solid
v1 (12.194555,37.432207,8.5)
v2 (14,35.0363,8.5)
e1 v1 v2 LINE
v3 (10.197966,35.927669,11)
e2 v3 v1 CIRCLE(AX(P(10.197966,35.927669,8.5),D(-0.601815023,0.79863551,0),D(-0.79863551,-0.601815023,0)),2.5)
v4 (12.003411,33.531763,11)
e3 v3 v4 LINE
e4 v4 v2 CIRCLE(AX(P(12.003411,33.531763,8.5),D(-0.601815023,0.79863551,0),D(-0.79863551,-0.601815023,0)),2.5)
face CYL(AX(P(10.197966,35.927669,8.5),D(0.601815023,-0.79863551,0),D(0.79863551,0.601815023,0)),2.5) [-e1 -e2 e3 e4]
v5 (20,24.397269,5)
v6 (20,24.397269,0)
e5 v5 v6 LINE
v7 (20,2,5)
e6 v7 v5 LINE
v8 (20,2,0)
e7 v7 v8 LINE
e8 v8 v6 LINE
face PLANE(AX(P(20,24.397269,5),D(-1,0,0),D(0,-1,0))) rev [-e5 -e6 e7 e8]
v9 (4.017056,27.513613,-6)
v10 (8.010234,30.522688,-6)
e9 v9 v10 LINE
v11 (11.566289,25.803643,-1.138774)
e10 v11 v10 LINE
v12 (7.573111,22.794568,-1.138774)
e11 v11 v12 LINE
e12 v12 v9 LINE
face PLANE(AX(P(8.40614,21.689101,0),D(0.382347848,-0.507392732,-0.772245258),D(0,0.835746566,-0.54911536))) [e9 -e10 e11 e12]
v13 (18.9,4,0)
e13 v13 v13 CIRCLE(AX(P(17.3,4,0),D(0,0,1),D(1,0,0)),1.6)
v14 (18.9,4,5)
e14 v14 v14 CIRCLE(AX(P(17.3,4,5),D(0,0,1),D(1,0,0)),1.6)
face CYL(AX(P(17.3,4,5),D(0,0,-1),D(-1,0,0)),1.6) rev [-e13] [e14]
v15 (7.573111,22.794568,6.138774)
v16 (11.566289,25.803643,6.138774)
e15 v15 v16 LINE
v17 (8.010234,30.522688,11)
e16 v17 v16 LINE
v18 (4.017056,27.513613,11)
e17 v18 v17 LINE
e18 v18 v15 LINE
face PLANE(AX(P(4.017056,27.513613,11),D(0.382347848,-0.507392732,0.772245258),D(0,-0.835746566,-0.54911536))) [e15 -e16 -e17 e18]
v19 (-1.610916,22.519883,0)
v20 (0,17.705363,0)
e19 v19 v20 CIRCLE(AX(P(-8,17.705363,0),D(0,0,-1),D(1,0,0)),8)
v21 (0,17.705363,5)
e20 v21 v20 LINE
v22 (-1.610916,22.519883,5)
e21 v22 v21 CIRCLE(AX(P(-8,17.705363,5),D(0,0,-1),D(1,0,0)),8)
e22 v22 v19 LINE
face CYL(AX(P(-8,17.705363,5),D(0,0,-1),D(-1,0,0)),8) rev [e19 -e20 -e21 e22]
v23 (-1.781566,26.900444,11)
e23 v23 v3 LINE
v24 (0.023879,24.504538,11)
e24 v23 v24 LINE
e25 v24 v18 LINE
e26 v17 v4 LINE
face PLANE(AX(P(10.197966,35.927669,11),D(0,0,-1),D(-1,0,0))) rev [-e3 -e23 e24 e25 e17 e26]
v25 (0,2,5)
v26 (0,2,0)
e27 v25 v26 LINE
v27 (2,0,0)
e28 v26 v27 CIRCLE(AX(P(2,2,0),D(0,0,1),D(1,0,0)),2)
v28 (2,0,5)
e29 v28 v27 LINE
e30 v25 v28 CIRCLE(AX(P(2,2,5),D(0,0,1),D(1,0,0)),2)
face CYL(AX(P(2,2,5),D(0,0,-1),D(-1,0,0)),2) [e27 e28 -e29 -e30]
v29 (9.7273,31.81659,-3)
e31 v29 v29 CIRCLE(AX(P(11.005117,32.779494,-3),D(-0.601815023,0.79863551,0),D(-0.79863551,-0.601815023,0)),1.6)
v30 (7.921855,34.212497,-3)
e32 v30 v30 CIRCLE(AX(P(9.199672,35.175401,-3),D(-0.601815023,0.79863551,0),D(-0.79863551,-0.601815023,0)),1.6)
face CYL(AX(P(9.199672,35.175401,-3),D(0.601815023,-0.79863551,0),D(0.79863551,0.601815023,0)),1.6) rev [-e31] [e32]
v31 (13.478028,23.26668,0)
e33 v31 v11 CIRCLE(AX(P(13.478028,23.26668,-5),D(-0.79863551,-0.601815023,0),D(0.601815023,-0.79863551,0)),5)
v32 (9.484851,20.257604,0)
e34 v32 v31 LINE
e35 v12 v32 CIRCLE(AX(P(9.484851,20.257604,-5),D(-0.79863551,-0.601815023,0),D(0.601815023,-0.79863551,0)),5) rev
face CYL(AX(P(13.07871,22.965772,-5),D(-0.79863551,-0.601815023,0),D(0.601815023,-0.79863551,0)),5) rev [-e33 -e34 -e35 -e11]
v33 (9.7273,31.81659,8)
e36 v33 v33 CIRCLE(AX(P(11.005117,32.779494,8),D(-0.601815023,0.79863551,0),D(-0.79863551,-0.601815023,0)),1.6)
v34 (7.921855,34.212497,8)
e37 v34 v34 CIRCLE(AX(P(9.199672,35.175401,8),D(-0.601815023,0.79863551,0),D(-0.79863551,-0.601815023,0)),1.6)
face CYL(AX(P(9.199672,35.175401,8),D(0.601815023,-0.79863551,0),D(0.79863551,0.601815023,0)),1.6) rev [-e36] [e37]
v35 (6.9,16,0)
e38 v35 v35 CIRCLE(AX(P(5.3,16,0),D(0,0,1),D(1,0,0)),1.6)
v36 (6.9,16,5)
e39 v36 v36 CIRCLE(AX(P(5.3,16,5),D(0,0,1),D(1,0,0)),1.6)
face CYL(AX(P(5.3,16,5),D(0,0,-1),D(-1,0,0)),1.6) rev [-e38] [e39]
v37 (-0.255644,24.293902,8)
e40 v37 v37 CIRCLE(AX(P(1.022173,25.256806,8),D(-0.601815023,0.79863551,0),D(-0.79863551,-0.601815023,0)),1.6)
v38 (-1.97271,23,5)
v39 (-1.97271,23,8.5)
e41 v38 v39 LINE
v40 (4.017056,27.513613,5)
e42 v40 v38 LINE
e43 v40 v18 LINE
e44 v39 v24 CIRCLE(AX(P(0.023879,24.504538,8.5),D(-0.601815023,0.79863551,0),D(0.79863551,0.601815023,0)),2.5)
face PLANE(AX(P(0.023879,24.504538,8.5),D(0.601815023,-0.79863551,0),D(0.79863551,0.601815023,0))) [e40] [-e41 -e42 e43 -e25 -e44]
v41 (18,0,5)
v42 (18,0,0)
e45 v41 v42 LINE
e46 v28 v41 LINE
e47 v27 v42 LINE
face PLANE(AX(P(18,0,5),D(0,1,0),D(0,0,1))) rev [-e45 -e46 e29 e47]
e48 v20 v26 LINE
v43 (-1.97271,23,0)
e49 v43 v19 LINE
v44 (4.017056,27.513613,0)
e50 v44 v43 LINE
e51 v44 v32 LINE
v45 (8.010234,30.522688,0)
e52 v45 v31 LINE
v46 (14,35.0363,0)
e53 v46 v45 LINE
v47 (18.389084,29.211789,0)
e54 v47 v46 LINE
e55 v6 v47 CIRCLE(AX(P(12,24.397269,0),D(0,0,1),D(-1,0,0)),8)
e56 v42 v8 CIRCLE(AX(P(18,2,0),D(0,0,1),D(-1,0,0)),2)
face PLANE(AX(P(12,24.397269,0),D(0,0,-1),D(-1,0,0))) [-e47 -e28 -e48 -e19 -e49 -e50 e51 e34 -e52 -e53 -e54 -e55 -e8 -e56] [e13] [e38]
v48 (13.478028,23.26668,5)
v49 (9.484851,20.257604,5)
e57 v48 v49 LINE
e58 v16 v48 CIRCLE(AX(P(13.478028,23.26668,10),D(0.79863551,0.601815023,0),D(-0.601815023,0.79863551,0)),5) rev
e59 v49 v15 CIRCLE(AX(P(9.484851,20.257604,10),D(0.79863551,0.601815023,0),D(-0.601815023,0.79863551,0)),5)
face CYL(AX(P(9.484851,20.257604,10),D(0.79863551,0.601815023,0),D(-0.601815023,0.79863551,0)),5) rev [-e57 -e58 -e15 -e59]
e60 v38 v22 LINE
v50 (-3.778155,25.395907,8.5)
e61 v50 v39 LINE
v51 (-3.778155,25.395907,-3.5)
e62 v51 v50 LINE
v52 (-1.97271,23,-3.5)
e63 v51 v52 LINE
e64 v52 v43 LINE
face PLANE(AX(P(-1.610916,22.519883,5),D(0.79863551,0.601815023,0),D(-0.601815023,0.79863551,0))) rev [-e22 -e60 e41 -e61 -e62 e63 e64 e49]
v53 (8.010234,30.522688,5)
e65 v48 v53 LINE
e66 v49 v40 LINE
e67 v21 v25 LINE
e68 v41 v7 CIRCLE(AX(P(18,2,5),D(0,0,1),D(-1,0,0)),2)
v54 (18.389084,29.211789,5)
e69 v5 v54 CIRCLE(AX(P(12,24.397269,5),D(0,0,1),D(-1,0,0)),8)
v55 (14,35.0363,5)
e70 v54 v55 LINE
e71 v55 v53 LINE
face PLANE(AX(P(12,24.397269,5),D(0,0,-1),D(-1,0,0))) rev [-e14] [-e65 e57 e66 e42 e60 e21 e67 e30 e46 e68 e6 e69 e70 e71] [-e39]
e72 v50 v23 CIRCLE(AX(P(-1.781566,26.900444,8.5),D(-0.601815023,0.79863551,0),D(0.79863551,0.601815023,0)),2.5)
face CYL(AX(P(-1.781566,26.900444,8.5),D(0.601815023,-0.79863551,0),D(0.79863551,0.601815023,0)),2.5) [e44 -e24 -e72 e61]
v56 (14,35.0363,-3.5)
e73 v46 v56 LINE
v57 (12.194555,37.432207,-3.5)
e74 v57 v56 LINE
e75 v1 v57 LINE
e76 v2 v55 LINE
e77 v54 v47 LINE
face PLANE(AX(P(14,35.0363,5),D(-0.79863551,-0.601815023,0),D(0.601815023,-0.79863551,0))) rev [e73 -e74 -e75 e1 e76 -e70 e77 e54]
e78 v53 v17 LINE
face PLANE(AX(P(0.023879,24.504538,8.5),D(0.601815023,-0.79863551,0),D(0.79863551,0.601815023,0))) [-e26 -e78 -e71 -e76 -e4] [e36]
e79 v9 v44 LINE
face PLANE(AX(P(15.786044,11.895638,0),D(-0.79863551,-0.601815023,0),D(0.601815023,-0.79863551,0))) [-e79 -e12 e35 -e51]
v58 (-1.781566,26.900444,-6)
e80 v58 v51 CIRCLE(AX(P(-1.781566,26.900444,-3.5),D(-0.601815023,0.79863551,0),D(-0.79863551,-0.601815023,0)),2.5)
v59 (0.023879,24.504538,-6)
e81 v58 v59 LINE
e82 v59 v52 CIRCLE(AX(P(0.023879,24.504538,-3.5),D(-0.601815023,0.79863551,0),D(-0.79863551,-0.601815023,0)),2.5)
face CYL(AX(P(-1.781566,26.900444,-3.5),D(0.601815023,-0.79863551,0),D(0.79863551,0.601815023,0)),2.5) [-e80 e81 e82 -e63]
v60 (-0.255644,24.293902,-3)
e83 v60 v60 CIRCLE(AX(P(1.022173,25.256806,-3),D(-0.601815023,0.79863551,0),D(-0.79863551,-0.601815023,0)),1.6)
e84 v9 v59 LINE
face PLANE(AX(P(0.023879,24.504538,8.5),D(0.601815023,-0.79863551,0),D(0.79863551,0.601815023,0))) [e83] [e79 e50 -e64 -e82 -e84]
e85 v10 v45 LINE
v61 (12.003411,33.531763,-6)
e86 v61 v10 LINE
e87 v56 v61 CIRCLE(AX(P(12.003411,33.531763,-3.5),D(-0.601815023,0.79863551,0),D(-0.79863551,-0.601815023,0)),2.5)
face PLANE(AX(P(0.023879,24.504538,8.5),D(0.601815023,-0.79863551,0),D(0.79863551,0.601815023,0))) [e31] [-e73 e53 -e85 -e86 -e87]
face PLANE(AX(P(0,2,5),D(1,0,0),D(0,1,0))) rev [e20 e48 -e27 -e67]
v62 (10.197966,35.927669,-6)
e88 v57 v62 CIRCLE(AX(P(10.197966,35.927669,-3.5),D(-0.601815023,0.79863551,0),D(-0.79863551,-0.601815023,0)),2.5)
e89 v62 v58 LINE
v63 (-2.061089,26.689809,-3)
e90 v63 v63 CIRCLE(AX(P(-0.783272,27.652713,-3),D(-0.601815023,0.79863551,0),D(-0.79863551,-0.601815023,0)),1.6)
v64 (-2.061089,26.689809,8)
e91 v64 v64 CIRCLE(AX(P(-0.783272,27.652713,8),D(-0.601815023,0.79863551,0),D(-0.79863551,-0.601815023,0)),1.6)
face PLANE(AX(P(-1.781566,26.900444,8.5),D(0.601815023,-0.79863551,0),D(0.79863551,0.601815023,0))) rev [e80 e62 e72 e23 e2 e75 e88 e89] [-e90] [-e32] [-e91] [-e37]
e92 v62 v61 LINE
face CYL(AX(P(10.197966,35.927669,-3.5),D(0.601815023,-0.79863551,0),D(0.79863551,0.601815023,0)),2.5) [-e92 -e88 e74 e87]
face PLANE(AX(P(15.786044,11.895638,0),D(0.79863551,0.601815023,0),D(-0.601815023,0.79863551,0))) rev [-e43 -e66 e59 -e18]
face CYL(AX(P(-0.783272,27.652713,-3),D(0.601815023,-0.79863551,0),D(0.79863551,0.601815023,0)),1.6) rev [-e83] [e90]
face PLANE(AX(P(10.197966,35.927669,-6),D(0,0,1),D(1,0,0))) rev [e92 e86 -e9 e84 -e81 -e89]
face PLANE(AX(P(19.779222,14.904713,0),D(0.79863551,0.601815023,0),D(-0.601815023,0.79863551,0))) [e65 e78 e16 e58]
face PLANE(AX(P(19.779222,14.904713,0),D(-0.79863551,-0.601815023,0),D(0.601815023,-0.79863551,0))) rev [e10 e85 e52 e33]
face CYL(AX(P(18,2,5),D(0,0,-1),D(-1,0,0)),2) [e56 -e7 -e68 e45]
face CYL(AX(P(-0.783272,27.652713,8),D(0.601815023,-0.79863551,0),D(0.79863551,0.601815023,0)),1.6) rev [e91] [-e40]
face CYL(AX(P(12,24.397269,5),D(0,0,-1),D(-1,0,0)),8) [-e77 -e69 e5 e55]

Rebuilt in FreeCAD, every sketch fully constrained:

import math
import FreeCAD as App
import Part
import Sketcher
Q = App.Units.Quantity


def edges_at(feature, points):
    """Names of the edges that pass closest to the given points."""
    edges = feature.Shape.Edges
    near = lambda p: min(range(len(edges)), key=lambda i: edges[i].distToShape(Part.Vertex(*p))[0])
    return sorted({f"Edge{near(p) + 1}" for p in points})


def add_polygon(sketch, points):
    """Adds a closed chain of lines whose ends are joined by coincident constraints."""
    first, n = sketch.GeometryCount, len(points)
    for a, b in zip(points, points[1:] + points[:1]):
        sketch.addGeometry(Part.LineSegment(App.Vector(*a, 0), App.Vector(*b, 0)), False)
    for i in range(n):
        sketch.addConstraint(Sketcher.Constraint("Coincident", first + i, 2, first + (i + 1) % n, 1))

doc = App.newDocument("Part")
params = doc.addObject("Spreadsheet::Sheet", "Params")
for row, (alias, value) in enumerate([
    ("sketch1_radius", "2 mm"),
    ("sketch1_radius2", "8 mm"),
    ("sketch1_diameter", "3.2 mm"),
    ("sketch1_width", "16 mm"),
    ("sketch1_length", "20 mm"),
    ("pad1_length", "5 mm"),
    ("sketch2_diameter", "3.2 mm"),
    ("sketch2_radius", "2.5 mm"),
    ("sketch2_width", "15 mm"),
    ("sketch2_height", "12 mm"),
    ("pad2_length", "3 mm"),
    ("sketch3_width", "6 mm"),
    ("pad3_length", "5 mm"),
    ("fillet_radius", "5 mm"),
], start=1):
    params.set(f"A{row}", alias)
    params.set(f"B{row}", "=" + value)
    params.setAlias(f"B{row}", alias)

body = doc.addObject("PartDesign::Body", "Body")

sketch1 = body.newObject("Sketcher::SketchObject", "Sketch")
sketch1.AttachmentSupport = (doc.getObject("XY_Plane"), [""])
sketch1.MapMode = "FlatFace"
sketch1.addGeometry(Part.LineSegment(App.Vector(0, 17.705363, 0), App.Vector(0, 2, 0)), False)
sketch1.addGeometry(Part.ArcOfCircle(Part.Circle(App.Vector(2, 2, 0), App.Vector(0, 0, 1), 2), math.radians(-180), math.radians(-90)), False)
sketch1.addGeometry(Part.LineSegment(App.Vector(2, 0, 0), App.Vector(18, 0, 0)), False)
sketch1.addGeometry(Part.ArcOfCircle(Part.Circle(App.Vector(18, 2, 0), App.Vector(0, 0, 1), 2), math.radians(-90), math.radians(0)), False)
sketch1.addGeometry(Part.LineSegment(App.Vector(20, 2, 0), App.Vector(20, 24.397269, 0)), False)
sketch1.addGeometry(Part.ArcOfCircle(Part.Circle(App.Vector(12, 24.397269, 0), App.Vector(0, 0, 1), 8), math.radians(0), math.radians(37)), False)
sketch1.addGeometry(Part.LineSegment(App.Vector(18.389084, 29.211789, 0), App.Vector(14, 35.0363, 0)), False)
sketch1.addGeometry(Part.LineSegment(App.Vector(14, 35.0363, 0), App.Vector(-1.97271, 23, 0)), False)
sketch1.addGeometry(Part.LineSegment(App.Vector(-1.97271, 23, 0), App.Vector(-1.610916, 22.519883, 0)), False)
sketch1.addGeometry(Part.ArcOfCircle(Part.Circle(App.Vector(-8, 17.705363, 0), App.Vector(0, 0, 1), 8), math.radians(0), math.radians(37)), False)
sketch1.addGeometry(Part.Circle(App.Vector(17.3, 4, 0), App.Vector(0, 0, 1), 1.6), False)
sketch1.addGeometry(Part.Circle(App.Vector(5.3, 16, 0), App.Vector(0, 0, 1), 1.6), False)
sketch1.addConstraint(Sketcher.Constraint("Tangent", 0, 2, 1, 1))
sketch1.addConstraint(Sketcher.Constraint("Tangent", 1, 2, 2, 1))
sketch1.addConstraint(Sketcher.Constraint("Tangent", 2, 2, 3, 1))
sketch1.addConstraint(Sketcher.Constraint("Tangent", 3, 2, 4, 1))
sketch1.addConstraint(Sketcher.Constraint("Tangent", 4, 2, 5, 1))
sketch1.addConstraint(Sketcher.Constraint("Tangent", 5, 2, 6, 1))
sketch1.addConstraint(Sketcher.Constraint("Coincident", 6, 2, 7, 1))
sketch1.addConstraint(Sketcher.Constraint("Coincident", 7, 2, 8, 1))
sketch1.addConstraint(Sketcher.Constraint("Tangent", 8, 2, 9, 2))
sketch1.addConstraint(Sketcher.Constraint("Tangent", 9, 1, 0, 1))
sketch1.addConstraint(Sketcher.Constraint("Vertical", 0))
sketch1.addConstraint(Sketcher.Constraint("Horizontal", 2))
sketch1.addConstraint(Sketcher.Constraint("Vertical", 4))
sketch1.addConstraint(Sketcher.Constraint("Equal", 1, 3))
sketch1.addConstraint(Sketcher.Constraint("Equal", 5, 9))
sketch1.addConstraint(Sketcher.Constraint("Equal", 10, 11))
sketch1.addConstraint(Sketcher.Constraint("PointOnObject", 0, 2, -2))
sketch1.addConstraint(Sketcher.Constraint("PointOnObject", 1, 2, -1))
sketch1.addConstraint(Sketcher.Constraint("Perpendicular", 6, 7))
sketch1.addConstraint(Sketcher.Constraint("Perpendicular", 7, 8))
sketch1.addConstraint(Sketcher.Constraint("Radius", 1, 2.0))
sketch1.addConstraint(Sketcher.Constraint("Radius", 5, 8.0))
sketch1.addConstraint(Sketcher.Constraint("Diameter", 10, 3.2))
sketch1.addConstraint(Sketcher.Constraint("DistanceX", 2, 1, 2, 2, 16.0))
sketch1.addConstraint(Sketcher.Constraint("Angle", 6, Q("127 deg")))
sketch1.addConstraint(Sketcher.Constraint("Distance", 7, 20.0))
sketch1.addConstraint(Sketcher.Constraint("DistanceY", -1, 1, 10, 3, 4.0))
sketch1.addConstraint(Sketcher.Constraint("DistanceY", -1, 1, 11, 3, 16.0))
sketch1.addConstraint(Sketcher.Constraint("DistanceX", -1, 1, 6, 2, 14.0))
sketch1.addConstraint(Sketcher.Constraint("DistanceY", -1, 1, 7, 2, 23.0))
sketch1.addConstraint(Sketcher.Constraint("DistanceX", 11, 3, 10, 3, 12.0))
sketch1.addConstraint(Sketcher.Constraint("DistanceX", -1, 1, 10, 3, 17.3))
sketch1.setExpression("Constraints[20]", "Params.sketch1_radius")
sketch1.setExpression("Constraints[21]", "Params.sketch1_radius2")
sketch1.setExpression("Constraints[22]", "Params.sketch1_diameter")
sketch1.setExpression("Constraints[23]", "Params.sketch1_width")
sketch1.setExpression("Constraints[25]", "Params.sketch1_length")
pad1 = body.newObject("PartDesign::Pad", "Pad")
pad1.Profile = sketch1
pad1.setExpression("Length", "Params.pad1_length")

sketch2 = body.newObject("Sketcher::SketchObject", "Sketch001")
sketch2.Placement = App.Placement(App.Vector(-11.768988, 15.617975, 0), App.Rotation(App.Vector(0.79863551, 0.601815023, 0), App.Vector(0, 0, -1), App.Vector(-0.601815023, 0.79863551, 0), "ZXY"))
sketch2.addGeometry(Part.LineSegment(App.Vector(14.766269, -11, 0), App.Vector(29.766269, -11, 0)), False)
sketch2.addGeometry(Part.ArcOfCircle(Part.Circle(App.Vector(29.766269, -8.5, 0), App.Vector(0, 0, 1), 2.5), math.radians(-90), math.radians(0)), False)
sketch2.addGeometry(Part.LineSegment(App.Vector(32.266269, -8.5, 0), App.Vector(32.266269, 3.5, 0)), False)
sketch2.addGeometry(Part.ArcOfCircle(Part.Circle(App.Vector(29.766269, 3.5, 0), App.Vector(0, 0, 1), 2.5), math.radians(0), math.radians(90)), False)
sketch2.addGeometry(Part.LineSegment(App.Vector(29.766269, 6, 0), App.Vector(14.766269, 6, 0)), False)
sketch2.addGeometry(Part.ArcOfCircle(Part.Circle(App.Vector(14.766269, 3.5, 0), App.Vector(0, 0, 1), 2.5), math.radians(90), math.radians(180)), False)
sketch2.addGeometry(Part.LineSegment(App.Vector(12.266269, 3.5, 0), App.Vector(12.266269, -8.5, 0)), False)
sketch2.addGeometry(Part.ArcOfCircle(Part.Circle(App.Vector(14.766269, -8.5, 0), App.Vector(0, 0, 1), 2.5), math.radians(180), math.radians(270)), False)
sketch2.addGeometry(Part.Circle(App.Vector(28.516269, -8, 0), App.Vector(0, 0, 1), 1.6), False)
sketch2.addGeometry(Part.Circle(App.Vector(16.016269, -8, 0), App.Vector(0, 0, 1), 1.6), False)
sketch2.addGeometry(Part.Circle(App.Vector(28.516269, 3, 0), App.Vector(0, 0, 1), 1.6), False)
sketch2.addGeometry(Part.Circle(App.Vector(16.016269, 3, 0), App.Vector(0, 0, 1), 1.6), False)
sketch2.addConstraint(Sketcher.Constraint("Tangent", 0, 2, 1, 1))
sketch2.addConstraint(Sketcher.Constraint("Tangent", 1, 2, 2, 1))
sketch2.addConstraint(Sketcher.Constraint("Tangent", 2, 2, 3, 1))
sketch2.addConstraint(Sketcher.Constraint("Tangent", 3, 2, 4, 1))
sketch2.addConstraint(Sketcher.Constraint("Tangent", 4, 2, 5, 1))
sketch2.addConstraint(Sketcher.Constraint("Tangent", 5, 2, 6, 1))
sketch2.addConstraint(Sketcher.Constraint("Tangent", 6, 2, 7, 1))
sketch2.addConstraint(Sketcher.Constraint("Tangent", 7, 2, 0, 1))
sketch2.addConstraint(Sketcher.Constraint("Horizontal", 0))
sketch2.addConstraint(Sketcher.Constraint("Vertical", 2))
sketch2.addConstraint(Sketcher.Constraint("Horizontal", 4))
sketch2.addConstraint(Sketcher.Constraint("Vertical", 6))
sketch2.addConstraint(Sketcher.Constraint("Equal", 1, 3))
sketch2.addConstraint(Sketcher.Constraint("Equal", 3, 5))
sketch2.addConstraint(Sketcher.Constraint("Equal", 5, 7))
sketch2.addConstraint(Sketcher.Constraint("Equal", 8, 9))
sketch2.addConstraint(Sketcher.Constraint("Equal", 9, 10))
sketch2.addConstraint(Sketcher.Constraint("Equal", 10, 11))
sketch2.addConstraint(Sketcher.Constraint("Horizontal", 8, 3, 9, 3))
sketch2.addConstraint(Sketcher.Constraint("Horizontal", 10, 3, 11, 3))
sketch2.addConstraint(Sketcher.Constraint("Vertical", 8, 3, 10, 3))
sketch2.addConstraint(Sketcher.Constraint("Vertical", 9, 3, 11, 3))
sketch2.addConstraint(Sketcher.Constraint("Diameter", 8, 3.2))
sketch2.addConstraint(Sketcher.Constraint("Radius", 1, 2.5))
sketch2.addConstraint(Sketcher.Constraint("DistanceX", 0, 1, 0, 2, 15.0))
sketch2.addConstraint(Sketcher.Constraint("DistanceY", 2, 1, 2, 2, 12.0))
sketch2.addConstraint(Sketcher.Constraint("DistanceY", 8, 3, -1, 1, 8.0))
sketch2.addConstraint(Sketcher.Constraint("DistanceY", -1, 1, 10, 3, 3.0))
sketch2.addConstraint(Sketcher.Constraint("DistanceY", 0, 2, -1, 1, 11.0))
sketch2.addConstraint(Sketcher.Constraint("DistanceX", 9, 3, 8, 3, 12.5))
sketch2.addConstraint(Sketcher.Constraint("DistanceX", 8, 3, 1, 3, 1.25))
sketch2.addConstraint(Sketcher.Constraint("DistanceX", -1, 1, 1, 3, 29.766269))
sketch2.setExpression("Constraints[22]", "Params.sketch2_diameter")
sketch2.setExpression("Constraints[23]", "Params.sketch2_radius")
sketch2.setExpression("Constraints[24]", "Params.sketch2_width")
sketch2.setExpression("Constraints[25]", "Params.sketch2_height")
pad2 = body.newObject("PartDesign::Pad", "Pad001")
pad2.Profile = sketch2
pad2.setExpression("Length", "Params.pad2_length")

sketch3 = body.newObject("Sketcher::SketchObject", "Sketch002")
sketch3.Placement = App.Placement(App.Vector(19.779222, 14.904713, 0), App.Rotation(App.Vector(0, 0, -1), App.Vector(-0.601815023, 0.79863551, 0), App.Vector(0.79863551, 0.601815023, 0), "ZXY"))
add_polygon(sketch3, [(-11, 19.555823), (-5, 12.262745), (-5, 19.555823)])
add_polygon(sketch3, [(0, 12.262745), (6, 19.555823), (0, 19.555823)])
sketch3.addConstraint(Sketcher.Constraint("Vertical", 1))
sketch3.addConstraint(Sketcher.Constraint("Horizontal", 2))
sketch3.addConstraint(Sketcher.Constraint("Horizontal", 4))
sketch3.addConstraint(Sketcher.Constraint("Vertical", 5))
sketch3.addConstraint(Sketcher.Constraint("PointOnObject", 4, 2, -2))
sketch3.addConstraint(Sketcher.Constraint("Horizontal", 2, 2, 3, 2))
sketch3.addConstraint(Sketcher.Constraint("Horizontal", 0, 2, 5, 2))
sketch3.addConstraint(Sketcher.Constraint("Equal", 2, 4))
sketch3.addConstraint(Sketcher.Constraint("DistanceX", 2, 2, 2, 1, 6.0))
sketch3.addConstraint(Sketcher.Constraint("DistanceX", 0, 2, -1, 1, 5.0))
sketch3.addConstraint(Sketcher.Constraint("DistanceY", 1, 1, 1, 2, 7.293078))
sketch3.addConstraint(Sketcher.Constraint("DistanceY", -1, 1, 0, 2, 12.262745))
sketch3.setExpression("Constraints[14]", "Params.sketch3_width")
pad3 = body.newObject("PartDesign::Pad", "Pad002")
pad3.Profile = sketch3
pad3.setExpression("Length", "Params.pad3_length")
pad3.Reversed = True
doc.recompute()

fillet = body.newObject("PartDesign::Fillet", "Fillet")
fillet.Base = (pad3, edges_at(pad3, [(10.403, 23.194, 5), (10.403, 23.194, 0)]))
fillet.setExpression("Radius", "Params.fillet_radius")

doc.recompute()
